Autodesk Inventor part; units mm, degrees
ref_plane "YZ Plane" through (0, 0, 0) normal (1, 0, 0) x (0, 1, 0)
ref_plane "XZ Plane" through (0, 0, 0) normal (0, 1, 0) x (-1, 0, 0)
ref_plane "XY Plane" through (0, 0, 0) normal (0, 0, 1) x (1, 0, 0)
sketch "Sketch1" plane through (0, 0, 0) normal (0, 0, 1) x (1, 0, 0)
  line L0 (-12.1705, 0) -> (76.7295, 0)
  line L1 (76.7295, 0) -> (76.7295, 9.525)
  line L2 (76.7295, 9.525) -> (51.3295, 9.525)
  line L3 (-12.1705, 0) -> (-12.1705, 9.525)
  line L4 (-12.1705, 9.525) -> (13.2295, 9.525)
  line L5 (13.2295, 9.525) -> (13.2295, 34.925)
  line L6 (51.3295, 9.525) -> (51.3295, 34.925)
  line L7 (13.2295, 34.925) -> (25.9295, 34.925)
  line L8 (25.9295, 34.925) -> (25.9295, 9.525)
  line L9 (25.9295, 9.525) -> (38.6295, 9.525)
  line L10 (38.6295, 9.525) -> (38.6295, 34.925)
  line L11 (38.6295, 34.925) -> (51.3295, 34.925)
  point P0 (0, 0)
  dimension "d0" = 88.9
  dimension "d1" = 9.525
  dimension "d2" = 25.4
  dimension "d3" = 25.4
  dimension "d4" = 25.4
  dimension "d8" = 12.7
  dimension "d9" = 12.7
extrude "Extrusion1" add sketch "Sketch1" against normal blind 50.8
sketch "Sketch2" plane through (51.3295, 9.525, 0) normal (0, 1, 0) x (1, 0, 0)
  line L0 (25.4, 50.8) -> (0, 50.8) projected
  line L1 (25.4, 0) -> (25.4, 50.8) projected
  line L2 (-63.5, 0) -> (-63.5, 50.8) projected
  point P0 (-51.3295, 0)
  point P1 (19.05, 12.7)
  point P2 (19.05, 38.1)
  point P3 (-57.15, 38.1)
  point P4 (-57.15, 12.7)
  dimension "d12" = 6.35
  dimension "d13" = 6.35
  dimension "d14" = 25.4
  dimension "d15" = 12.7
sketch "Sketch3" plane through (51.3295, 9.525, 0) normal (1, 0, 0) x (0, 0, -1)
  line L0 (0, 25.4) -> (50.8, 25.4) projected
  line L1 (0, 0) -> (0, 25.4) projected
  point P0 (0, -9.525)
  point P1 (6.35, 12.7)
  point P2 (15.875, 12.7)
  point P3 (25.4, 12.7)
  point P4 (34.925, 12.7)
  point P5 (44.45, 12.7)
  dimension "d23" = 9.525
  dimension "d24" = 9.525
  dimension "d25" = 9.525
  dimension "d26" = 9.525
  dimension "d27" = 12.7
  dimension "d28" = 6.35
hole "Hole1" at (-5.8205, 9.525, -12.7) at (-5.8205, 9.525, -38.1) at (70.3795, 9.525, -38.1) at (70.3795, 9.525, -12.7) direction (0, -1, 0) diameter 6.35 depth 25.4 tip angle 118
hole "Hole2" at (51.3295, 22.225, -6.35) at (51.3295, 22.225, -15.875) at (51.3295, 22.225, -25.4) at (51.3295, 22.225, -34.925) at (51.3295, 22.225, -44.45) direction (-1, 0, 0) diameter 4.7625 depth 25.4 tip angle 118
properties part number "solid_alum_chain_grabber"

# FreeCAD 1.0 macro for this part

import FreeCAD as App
import Part
import Sketcher
Q = App.Units.Quantity

doc = App.newDocument("Part")
body = doc.addObject("PartDesign::Body", "Body")

# Sketch on XY plane
sketch1 = body.newObject("Sketcher::SketchObject", "Sketch")
sketch1.AttachmentSupport = (doc.getObject("XY_Plane"), [""])
sketch1.MapMode = "FlatFace"
sketch1.addGeometry(Part.LineSegment(App.Vector(-12.1705, 9.525, 0), App.Vector(-12.1705, 0, 0)), False)
sketch1.addGeometry(Part.LineSegment(App.Vector(-12.1705, 0, 0), App.Vector(76.7295, 0, 0)), False)
sketch1.addGeometry(Part.LineSegment(App.Vector(76.7295, 0, 0), App.Vector(76.7295, 9.525, 0)), False)
sketch1.addGeometry(Part.LineSegment(App.Vector(76.7295, 9.525, 0), App.Vector(51.3295, 9.525, 0)), False)
sketch1.addGeometry(Part.LineSegment(App.Vector(51.3295, 9.525, 0), App.Vector(51.3295, 34.925, 0)), False)
sketch1.addGeometry(Part.LineSegment(App.Vector(51.3295, 34.925, 0), App.Vector(38.6295, 34.925, 0)), False)
sketch1.addGeometry(Part.LineSegment(App.Vector(38.6295, 34.925, 0), App.Vector(38.6295, 9.525, 0)), False)
sketch1.addGeometry(Part.LineSegment(App.Vector(38.6295, 9.525, 0), App.Vector(25.9295, 9.525, 0)), False)
sketch1.addGeometry(Part.LineSegment(App.Vector(25.9295, 9.525, 0), App.Vector(25.9295, 34.925, 0)), False)
sketch1.addGeometry(Part.LineSegment(App.Vector(25.9295, 34.925, 0), App.Vector(13.2295, 34.925, 0)), False)
sketch1.addGeometry(Part.LineSegment(App.Vector(13.2295, 34.925, 0), App.Vector(13.2295, 9.525, 0)), False)
sketch1.addGeometry(Part.LineSegment(App.Vector(13.2295, 9.525, 0), App.Vector(-12.1705, 9.525, 0)), False)
sketch1.addConstraint(Sketcher.Constraint("Coincident", 0, 2, 1, 1))
sketch1.addConstraint(Sketcher.Constraint("Coincident", 1, 2, 2, 1))
sketch1.addConstraint(Sketcher.Constraint("Coincident", 2, 2, 3, 1))
sketch1.addConstraint(Sketcher.Constraint("Coincident", 3, 2, 4, 1))
sketch1.addConstraint(Sketcher.Constraint("Coincident", 4, 2, 5, 1))
sketch1.addConstraint(Sketcher.Constraint("Coincident", 5, 2, 6, 1))
sketch1.addConstraint(Sketcher.Constraint("Coincident", 6, 2, 7, 1))
sketch1.addConstraint(Sketcher.Constraint("Coincident", 7, 2, 8, 1))
sketch1.addConstraint(Sketcher.Constraint("Coincident", 8, 2, 9, 1))
sketch1.addConstraint(Sketcher.Constraint("Coincident", 9, 2, 10, 1))
sketch1.addConstraint(Sketcher.Constraint("Coincident", 10, 2, 11, 1))
sketch1.addConstraint(Sketcher.Constraint("Coincident", 11, 2, 0, 1))
sketch1.addConstraint(Sketcher.Constraint("Vertical", 0))
sketch1.addConstraint(Sketcher.Constraint("Horizontal", 1))
sketch1.addConstraint(Sketcher.Constraint("Vertical", 2))
sketch1.addConstraint(Sketcher.Constraint("Horizontal", 3))
sketch1.addConstraint(Sketcher.Constraint("Vertical", 4))
sketch1.addConstraint(Sketcher.Constraint("Horizontal", 5))
sketch1.addConstraint(Sketcher.Constraint("Vertical", 6))
sketch1.addConstraint(Sketcher.Constraint("Horizontal", 7))
sketch1.addConstraint(Sketcher.Constraint("Vertical", 8))
sketch1.addConstraint(Sketcher.Constraint("Horizontal", 9))
sketch1.addConstraint(Sketcher.Constraint("Vertical", 10))
sketch1.addConstraint(Sketcher.Constraint("Horizontal", 11))
sketch1.addConstraint(Sketcher.Constraint("PointOnObject", 0, 2, -1))
sketch1.addConstraint(Sketcher.Constraint("Horizontal", 3, 2, 6, 2))
sketch1.addConstraint(Sketcher.Constraint("Horizontal", 5, 2, 8, 2))
sketch1.addConstraint(Sketcher.Constraint("Horizontal", 7, 2, 10, 2))
sketch1.addConstraint(Sketcher.Constraint("Equal", 5, 7))
sketch1.addConstraint(Sketcher.Constraint("Equal", 7, 9))
sketch1.addConstraint(Sketcher.Constraint("Equal", 3, 11))
sketch1.addConstraint(Sketcher.Constraint("Equal", 11, 4))
sketch1.addConstraint(Sketcher.Constraint("DistanceX", 3, 2, 3, 1, Q("1 in")))
sketch1.addConstraint(Sketcher.Constraint("DistanceX", 1, 1, 1, 2, Q("3.5 in")))
sketch1.addConstraint(Sketcher.Constraint("DistanceY", 0, 2, 0, 1, Q("0.375 in")))
sketch1.addConstraint(Sketcher.Constraint("DistanceX", 0, 2, -1, 1, Q("12.1705 mm")))
pad1 = body.newObject("PartDesign::Pad", "Pad")
pad1.Profile = sketch1
pad1.Length = Q("2 in")
pad1.Reversed = True

# Sketch on XZ plane
sketch2 = body.newObject("Sketcher::SketchObject", "Sketch001")
sketch2.AttachmentSupport = (doc.getObject("XZ_Plane"), [""])
sketch2.MapMode = "FlatFace"
sketch2.AttachmentOffset = App.Placement(App.Vector(0, 0, -0.375 * 25.4), App.Rotation())
sketch2.addGeometry(Part.Circle(App.Vector(-5.8205, -12.7, 0), App.Vector(0, 0, 1), 3.175), False)
sketch2.addGeometry(Part.Circle(App.Vector(-5.8205, -38.1, 0), App.Vector(0, 0, 1), 3.175), False)
sketch2.addGeometry(Part.Circle(App.Vector(70.3795, -38.1, 0), App.Vector(0, 0, 1), 3.175), False)
sketch2.addGeometry(Part.Circle(App.Vector(70.3795, -12.7, 0), App.Vector(0, 0, 1), 3.175), False)
sketch2.addConstraint(Sketcher.Constraint("Equal", 0, 1))
sketch2.addConstraint(Sketcher.Constraint("Equal", 1, 2))
sketch2.addConstraint(Sketcher.Constraint("Equal", 2, 3))
sketch2.addConstraint(Sketcher.Constraint("Horizontal", 1, 3, 2, 3))
sketch2.addConstraint(Sketcher.Constraint("Horizontal", 0, 3, 3, 3))
sketch2.addConstraint(Sketcher.Constraint("Vertical", 0, 3, 1, 3))
sketch2.addConstraint(Sketcher.Constraint("Vertical", 2, 3, 3, 3))
sketch2.addConstraint(Sketcher.Constraint("Diameter", 0, Q("0.25 in")))
sketch2.addConstraint(Sketcher.Constraint("DistanceY", 1, 3, 0, 3, Q("1 in")))
sketch2.addConstraint(Sketcher.Constraint("DistanceX", 1, 3, 2, 3, Q("3 in")))
sketch2.addConstraint(Sketcher.Constraint("DistanceY", 0, 3, -1, 1, Q("0.5 in")))
sketch2.addConstraint(Sketcher.Constraint("DistanceX", 0, 3, -1, 1, Q("5.8205 mm")))
doc.recompute()
hole = body.newObject("PartDesign::Hole", "Hole")
hole.Profile = sketch2
hole.ThreadType = "None"
hole.Diameter = Q("0.25 in")
hole.DepthType = "Dimension"
hole.Depth = Q("1 in")
hole.DrillPoint = "Angled"
hole.DrillPointAngle = 118
hole.Reversed = True

# Sketch on YZ plane
sketch3 = body.newObject("Sketcher::SketchObject", "Sketch002")
sketch3.AttachmentSupport = (doc.getObject("YZ_Plane"), [""])
sketch3.MapMode = "FlatFace"
sketch3.AttachmentOffset = App.Placement(App.Vector(0, 0, 51.3295), App.Rotation())
sketch3.addGeometry(Part.Circle(App.Vector(22.225, -6.35, 0), App.Vector(0, 0, 1), 2.38125), False)
sketch3.addGeometry(Part.Circle(App.Vector(22.225, -15.875, 0), App.Vector(0, 0, 1), 2.38125), False)
sketch3.addGeometry(Part.Circle(App.Vector(22.225, -25.4, 0), App.Vector(0, 0, 1), 2.38125), False)
sketch3.addGeometry(Part.Circle(App.Vector(22.225, -34.925, 0), App.Vector(0, 0, 1), 2.38125), False)
sketch3.addGeometry(Part.Circle(App.Vector(22.225, -44.45, 0), App.Vector(0, 0, 1), 2.38125), False)
sketch3.addConstraint(Sketcher.Constraint("Equal", 0, 1))
sketch3.addConstraint(Sketcher.Constraint("Equal", 1, 2))
sketch3.addConstraint(Sketcher.Constraint("Equal", 2, 3))
sketch3.addConstraint(Sketcher.Constraint("Equal", 3, 4))
sketch3.addConstraint(Sketcher.Constraint("Vertical", 0, 3, 1, 3))
sketch3.addConstraint(Sketcher.Constraint("Vertical", 1, 3, 2, 3))
sketch3.addConstraint(Sketcher.Constraint("Vertical", 2, 3, 3, 3))
sketch3.addConstraint(Sketcher.Constraint("Vertical", 3, 3, 4, 3))
sketch3.addConstraint(Sketcher.Constraint("Diameter", 0, Q("0.1875 in")))
sketch3.addConstraint(Sketcher.Constraint("DistanceY", 2, 3, -1, 1, Q("1 in")))
sketch3.addConstraint(Sketcher.Constraint("DistanceY", 4, 3, 0, 3, Q("1.5 in")))
sketch3.addConstraint(Sketcher.Constraint("DistanceY", 0, 3, -1, 1, Q("0.25 in")))
sketch3.addConstraint(Sketcher.Constraint("DistanceY", 3, 3, 1, 3, Q("0.75 in")))
sketch3.addConstraint(Sketcher.Constraint("DistanceX", -1, 1, 0, 3, Q("0.875 in")))
sketch3.addConstraint(Sketcher.Constraint("DistanceY", 1, 3, -1, 1, Q("0.625 in")))
doc.recompute()
hole2 = body.newObject("PartDesign::Hole", "Hole001")
hole2.Profile = sketch3
hole2.ThreadType = "None"
hole2.Diameter = Q("0.1875 in")
hole2.DepthType = "Dimension"
hole2.Depth = Q("1 in")
hole2.DrillPoint = "Angled"
hole2.DrillPointAngle = 118

doc.recompute()
